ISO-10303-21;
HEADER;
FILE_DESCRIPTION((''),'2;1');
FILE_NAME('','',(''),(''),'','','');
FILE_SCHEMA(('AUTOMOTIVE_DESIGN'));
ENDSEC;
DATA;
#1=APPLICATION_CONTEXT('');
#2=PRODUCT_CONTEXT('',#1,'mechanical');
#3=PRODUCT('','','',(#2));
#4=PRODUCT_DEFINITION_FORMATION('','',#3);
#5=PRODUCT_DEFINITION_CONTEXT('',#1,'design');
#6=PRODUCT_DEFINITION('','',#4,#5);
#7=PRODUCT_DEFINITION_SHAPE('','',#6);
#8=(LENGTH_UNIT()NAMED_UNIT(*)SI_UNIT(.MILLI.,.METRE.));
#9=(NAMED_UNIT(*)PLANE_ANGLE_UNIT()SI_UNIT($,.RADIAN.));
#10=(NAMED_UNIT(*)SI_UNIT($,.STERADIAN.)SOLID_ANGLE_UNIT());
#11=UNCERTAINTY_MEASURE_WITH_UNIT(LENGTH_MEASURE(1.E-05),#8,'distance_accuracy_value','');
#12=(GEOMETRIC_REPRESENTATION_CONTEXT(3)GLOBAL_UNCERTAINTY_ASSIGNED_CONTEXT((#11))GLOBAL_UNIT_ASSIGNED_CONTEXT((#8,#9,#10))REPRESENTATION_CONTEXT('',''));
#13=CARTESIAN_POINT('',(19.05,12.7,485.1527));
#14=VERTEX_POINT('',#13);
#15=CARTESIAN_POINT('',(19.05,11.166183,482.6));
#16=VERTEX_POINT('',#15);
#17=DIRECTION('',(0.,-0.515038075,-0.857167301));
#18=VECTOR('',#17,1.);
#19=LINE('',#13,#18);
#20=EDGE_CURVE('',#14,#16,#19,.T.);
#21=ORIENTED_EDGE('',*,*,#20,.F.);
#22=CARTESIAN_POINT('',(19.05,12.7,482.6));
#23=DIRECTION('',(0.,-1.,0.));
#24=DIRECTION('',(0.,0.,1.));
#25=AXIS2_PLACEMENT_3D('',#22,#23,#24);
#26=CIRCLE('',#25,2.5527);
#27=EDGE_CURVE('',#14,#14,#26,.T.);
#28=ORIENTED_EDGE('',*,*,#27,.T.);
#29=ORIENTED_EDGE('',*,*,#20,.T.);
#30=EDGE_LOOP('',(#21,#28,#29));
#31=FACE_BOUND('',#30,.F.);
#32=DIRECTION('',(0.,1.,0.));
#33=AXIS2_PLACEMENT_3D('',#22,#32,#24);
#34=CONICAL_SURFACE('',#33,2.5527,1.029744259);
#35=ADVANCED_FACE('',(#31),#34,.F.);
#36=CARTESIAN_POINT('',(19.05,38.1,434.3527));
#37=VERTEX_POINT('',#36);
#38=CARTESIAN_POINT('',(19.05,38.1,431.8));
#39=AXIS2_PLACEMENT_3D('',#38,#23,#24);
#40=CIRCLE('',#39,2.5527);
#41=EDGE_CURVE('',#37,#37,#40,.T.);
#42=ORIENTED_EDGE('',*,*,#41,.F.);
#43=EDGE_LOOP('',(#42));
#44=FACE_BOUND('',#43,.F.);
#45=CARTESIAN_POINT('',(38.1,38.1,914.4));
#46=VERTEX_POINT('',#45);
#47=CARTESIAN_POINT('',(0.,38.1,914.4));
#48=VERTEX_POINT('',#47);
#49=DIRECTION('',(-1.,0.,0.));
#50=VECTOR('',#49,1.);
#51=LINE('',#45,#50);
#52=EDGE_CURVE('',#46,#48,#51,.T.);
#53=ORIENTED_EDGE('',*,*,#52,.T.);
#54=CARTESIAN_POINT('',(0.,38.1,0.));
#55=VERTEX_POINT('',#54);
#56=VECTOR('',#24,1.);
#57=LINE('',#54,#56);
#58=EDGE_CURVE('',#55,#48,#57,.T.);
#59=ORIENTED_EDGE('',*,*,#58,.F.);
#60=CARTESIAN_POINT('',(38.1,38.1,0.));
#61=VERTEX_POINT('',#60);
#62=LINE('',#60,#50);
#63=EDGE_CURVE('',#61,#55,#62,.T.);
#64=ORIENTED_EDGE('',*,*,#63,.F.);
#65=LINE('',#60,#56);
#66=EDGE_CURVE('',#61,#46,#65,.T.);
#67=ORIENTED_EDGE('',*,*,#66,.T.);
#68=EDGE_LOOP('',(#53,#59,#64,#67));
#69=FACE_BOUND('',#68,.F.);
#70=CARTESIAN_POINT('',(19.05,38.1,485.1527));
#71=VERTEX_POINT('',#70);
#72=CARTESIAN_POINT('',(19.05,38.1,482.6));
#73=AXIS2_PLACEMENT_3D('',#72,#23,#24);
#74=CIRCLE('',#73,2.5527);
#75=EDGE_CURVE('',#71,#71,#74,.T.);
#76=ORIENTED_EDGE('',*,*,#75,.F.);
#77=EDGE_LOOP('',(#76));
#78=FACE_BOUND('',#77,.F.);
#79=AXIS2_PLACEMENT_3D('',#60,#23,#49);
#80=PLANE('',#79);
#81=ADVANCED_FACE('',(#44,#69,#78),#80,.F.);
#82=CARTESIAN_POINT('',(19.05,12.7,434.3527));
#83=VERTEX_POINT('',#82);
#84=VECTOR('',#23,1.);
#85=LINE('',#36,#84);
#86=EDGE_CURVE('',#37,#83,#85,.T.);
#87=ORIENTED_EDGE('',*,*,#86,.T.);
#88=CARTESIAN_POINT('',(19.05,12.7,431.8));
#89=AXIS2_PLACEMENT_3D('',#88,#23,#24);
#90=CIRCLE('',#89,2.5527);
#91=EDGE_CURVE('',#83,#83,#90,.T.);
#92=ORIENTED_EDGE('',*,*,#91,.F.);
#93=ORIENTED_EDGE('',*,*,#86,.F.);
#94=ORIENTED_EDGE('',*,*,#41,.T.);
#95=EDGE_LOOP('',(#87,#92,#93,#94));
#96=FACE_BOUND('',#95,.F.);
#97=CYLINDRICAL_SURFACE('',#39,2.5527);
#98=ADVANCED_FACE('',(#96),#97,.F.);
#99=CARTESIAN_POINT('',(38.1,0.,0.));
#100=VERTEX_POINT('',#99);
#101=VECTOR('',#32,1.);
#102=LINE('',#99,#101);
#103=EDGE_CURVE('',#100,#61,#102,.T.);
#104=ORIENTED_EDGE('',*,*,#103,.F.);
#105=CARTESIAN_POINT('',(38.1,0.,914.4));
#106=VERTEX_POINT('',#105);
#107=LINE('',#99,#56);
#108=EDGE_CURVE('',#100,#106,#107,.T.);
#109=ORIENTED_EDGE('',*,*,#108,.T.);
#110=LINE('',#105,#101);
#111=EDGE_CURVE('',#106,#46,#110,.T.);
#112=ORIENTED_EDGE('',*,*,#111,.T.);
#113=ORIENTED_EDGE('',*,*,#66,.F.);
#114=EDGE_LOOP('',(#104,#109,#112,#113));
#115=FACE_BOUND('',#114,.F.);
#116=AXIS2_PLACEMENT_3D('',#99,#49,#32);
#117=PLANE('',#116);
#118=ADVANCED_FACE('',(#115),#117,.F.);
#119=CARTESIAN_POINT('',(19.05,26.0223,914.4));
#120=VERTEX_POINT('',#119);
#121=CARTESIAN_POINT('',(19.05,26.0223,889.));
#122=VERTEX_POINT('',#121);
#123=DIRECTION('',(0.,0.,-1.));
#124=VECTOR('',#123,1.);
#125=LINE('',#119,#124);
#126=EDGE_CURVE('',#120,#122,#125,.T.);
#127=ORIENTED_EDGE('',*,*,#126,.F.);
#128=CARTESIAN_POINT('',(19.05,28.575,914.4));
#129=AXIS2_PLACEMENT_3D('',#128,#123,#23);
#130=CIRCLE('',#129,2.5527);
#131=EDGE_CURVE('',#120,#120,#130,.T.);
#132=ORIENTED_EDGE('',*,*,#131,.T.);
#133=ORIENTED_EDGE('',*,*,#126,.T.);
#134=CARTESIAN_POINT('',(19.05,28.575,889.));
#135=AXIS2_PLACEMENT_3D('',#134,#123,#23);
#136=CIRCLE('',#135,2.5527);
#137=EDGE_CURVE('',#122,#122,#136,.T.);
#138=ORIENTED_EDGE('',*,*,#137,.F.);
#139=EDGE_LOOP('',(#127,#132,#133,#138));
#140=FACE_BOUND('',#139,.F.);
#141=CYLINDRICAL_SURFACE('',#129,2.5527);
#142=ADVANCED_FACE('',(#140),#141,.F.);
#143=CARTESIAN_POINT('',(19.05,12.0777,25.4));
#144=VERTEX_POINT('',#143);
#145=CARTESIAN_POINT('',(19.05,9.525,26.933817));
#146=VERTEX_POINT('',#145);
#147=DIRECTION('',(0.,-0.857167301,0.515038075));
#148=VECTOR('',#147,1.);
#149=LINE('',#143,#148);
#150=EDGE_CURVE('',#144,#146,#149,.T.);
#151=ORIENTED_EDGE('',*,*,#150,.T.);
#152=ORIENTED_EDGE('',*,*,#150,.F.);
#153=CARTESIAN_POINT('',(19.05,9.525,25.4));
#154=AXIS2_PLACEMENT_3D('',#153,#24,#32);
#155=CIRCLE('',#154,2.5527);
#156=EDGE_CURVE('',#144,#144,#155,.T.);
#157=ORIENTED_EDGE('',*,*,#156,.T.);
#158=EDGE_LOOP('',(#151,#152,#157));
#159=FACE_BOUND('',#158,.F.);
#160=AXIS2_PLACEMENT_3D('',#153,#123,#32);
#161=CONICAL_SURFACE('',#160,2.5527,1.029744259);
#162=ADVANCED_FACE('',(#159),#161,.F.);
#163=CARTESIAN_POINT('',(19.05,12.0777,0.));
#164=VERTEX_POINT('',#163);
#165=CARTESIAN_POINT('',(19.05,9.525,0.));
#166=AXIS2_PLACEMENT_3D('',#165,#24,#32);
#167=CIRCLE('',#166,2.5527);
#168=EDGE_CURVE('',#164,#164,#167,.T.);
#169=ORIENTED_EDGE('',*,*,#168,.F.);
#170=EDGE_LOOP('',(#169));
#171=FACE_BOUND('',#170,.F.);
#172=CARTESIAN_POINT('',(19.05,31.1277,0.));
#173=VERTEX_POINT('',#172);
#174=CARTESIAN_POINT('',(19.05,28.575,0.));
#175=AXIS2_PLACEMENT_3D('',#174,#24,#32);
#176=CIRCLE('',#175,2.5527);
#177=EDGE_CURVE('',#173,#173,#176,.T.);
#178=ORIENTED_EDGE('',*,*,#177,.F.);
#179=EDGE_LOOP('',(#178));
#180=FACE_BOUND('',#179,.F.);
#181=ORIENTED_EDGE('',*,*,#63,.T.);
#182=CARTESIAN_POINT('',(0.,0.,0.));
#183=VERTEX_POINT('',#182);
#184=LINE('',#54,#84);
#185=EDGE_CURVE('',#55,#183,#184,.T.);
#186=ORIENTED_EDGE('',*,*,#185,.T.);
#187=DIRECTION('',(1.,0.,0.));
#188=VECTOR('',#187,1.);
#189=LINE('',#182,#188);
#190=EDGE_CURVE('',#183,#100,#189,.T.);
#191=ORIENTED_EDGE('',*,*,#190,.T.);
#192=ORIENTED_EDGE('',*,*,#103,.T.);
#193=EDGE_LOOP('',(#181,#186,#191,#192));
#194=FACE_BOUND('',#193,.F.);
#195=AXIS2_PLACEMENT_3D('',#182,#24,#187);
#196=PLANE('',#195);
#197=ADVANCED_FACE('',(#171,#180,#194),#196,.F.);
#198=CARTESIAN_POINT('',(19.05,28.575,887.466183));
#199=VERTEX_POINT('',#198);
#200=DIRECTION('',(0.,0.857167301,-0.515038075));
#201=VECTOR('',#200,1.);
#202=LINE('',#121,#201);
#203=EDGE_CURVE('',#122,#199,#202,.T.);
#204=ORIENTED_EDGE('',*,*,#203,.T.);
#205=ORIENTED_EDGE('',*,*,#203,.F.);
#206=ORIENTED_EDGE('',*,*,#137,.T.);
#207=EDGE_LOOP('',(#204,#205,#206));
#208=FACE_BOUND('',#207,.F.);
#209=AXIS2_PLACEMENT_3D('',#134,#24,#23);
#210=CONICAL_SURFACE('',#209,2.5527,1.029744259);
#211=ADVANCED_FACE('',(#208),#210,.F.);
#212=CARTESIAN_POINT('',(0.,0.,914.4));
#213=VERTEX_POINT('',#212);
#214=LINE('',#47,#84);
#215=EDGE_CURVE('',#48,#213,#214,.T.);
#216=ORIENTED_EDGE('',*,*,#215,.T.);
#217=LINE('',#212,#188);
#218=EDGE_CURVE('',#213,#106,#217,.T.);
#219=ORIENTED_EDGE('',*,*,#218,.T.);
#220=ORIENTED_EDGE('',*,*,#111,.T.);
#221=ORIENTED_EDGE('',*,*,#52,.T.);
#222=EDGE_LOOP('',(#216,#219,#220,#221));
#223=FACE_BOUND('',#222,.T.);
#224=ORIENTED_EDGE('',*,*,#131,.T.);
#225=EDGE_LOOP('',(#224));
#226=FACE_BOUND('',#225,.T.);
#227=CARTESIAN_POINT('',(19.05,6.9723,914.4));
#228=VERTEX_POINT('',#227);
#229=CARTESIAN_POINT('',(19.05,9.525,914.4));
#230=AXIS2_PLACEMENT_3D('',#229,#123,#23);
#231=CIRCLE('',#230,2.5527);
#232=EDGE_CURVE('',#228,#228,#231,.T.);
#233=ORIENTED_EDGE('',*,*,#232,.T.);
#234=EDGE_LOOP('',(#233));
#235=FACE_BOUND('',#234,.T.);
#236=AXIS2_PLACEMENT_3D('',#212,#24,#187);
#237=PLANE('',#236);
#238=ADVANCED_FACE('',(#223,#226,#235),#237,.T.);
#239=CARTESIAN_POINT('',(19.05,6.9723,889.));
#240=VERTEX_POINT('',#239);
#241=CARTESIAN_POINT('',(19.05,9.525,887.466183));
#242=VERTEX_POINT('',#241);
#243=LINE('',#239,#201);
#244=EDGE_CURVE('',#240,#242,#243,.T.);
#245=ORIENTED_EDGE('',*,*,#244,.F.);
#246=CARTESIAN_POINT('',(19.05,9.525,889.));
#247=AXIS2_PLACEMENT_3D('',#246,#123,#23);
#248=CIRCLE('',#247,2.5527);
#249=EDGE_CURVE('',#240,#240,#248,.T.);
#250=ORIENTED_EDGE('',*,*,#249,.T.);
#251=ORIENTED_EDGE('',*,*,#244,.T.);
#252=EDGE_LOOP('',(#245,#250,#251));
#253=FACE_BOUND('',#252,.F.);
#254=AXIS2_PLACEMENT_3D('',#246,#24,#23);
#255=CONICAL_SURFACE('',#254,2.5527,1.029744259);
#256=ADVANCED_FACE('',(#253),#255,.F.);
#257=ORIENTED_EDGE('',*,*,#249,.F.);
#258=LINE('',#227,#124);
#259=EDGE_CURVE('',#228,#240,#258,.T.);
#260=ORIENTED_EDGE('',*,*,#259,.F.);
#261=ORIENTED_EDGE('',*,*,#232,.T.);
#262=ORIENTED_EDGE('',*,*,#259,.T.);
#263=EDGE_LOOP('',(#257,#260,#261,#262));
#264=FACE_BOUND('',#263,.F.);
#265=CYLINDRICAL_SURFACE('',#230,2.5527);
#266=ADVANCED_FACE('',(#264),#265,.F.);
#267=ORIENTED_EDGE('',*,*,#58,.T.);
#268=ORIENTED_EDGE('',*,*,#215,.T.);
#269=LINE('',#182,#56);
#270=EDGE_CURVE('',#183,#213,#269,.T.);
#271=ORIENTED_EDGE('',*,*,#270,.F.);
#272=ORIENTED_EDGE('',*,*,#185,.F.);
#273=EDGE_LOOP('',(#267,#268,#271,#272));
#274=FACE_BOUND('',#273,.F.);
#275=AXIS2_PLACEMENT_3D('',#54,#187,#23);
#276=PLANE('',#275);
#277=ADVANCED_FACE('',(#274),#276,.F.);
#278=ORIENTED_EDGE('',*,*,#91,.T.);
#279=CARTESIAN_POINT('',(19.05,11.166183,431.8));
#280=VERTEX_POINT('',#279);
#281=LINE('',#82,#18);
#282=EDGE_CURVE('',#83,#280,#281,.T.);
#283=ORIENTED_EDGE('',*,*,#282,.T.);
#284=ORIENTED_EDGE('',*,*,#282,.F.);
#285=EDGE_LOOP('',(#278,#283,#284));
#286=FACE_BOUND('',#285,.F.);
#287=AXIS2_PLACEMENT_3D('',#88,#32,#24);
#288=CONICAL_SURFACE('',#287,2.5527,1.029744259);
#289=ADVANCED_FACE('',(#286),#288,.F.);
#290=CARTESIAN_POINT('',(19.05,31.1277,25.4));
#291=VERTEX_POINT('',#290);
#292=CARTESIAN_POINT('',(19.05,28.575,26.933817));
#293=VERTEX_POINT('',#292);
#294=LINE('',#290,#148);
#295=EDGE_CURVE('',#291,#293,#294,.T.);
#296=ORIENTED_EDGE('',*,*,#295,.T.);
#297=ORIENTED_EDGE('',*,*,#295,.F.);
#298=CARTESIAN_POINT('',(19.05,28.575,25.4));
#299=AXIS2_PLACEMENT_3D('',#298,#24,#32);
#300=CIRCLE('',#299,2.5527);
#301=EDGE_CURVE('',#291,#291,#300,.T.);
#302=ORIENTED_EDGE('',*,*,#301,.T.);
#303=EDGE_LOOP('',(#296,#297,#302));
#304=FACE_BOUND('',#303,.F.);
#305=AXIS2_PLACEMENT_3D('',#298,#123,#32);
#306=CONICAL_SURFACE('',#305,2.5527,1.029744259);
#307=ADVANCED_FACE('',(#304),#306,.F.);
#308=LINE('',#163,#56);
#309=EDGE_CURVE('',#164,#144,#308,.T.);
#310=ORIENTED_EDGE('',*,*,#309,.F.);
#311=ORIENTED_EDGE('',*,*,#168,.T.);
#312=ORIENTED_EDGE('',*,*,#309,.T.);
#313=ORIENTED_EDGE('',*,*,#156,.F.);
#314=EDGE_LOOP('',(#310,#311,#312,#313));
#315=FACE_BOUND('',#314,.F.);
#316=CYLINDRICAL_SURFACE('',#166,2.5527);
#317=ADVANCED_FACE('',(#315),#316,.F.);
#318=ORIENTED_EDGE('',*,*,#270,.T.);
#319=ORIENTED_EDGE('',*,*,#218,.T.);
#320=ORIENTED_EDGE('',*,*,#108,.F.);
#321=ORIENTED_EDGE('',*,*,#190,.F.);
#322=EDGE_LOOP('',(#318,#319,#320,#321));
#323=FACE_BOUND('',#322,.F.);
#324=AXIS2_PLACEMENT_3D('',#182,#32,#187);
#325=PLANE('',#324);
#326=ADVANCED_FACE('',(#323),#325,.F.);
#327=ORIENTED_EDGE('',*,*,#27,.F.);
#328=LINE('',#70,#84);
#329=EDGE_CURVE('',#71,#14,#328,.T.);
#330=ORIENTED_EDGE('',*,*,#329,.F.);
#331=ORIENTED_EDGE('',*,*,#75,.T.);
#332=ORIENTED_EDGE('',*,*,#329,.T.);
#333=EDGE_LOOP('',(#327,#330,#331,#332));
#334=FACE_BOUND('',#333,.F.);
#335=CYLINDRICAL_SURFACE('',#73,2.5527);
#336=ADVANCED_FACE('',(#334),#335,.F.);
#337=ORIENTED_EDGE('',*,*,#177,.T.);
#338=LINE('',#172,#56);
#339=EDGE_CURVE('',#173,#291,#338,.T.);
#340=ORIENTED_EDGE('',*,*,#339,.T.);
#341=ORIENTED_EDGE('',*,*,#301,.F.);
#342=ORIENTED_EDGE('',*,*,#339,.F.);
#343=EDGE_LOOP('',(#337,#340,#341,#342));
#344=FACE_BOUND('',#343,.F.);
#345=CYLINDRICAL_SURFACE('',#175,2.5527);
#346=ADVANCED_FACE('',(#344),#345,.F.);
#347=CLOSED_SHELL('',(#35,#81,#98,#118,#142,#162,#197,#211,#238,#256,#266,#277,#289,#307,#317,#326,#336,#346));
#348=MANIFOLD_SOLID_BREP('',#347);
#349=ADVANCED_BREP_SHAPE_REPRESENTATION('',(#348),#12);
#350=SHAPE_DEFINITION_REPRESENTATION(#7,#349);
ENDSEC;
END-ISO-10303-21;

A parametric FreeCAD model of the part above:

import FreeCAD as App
import Part
import Sketcher
from FreeCAD import Vector
Q = App.Units.Quantity

doc = App.newDocument("Part")
body = doc.addObject("PartDesign::Body", "Body")

sketch1 = body.newObject("Sketcher::SketchObject", "Sketch")
sketch1.AttachmentSupport = (doc.getObject("XY_Plane"), [""])
sketch1.MapMode = "FlatFace"
sketch1.addGeometry([
    Part.LineSegment(Vector(0, 38, 0), Vector(0, 0, 0)),
    Part.LineSegment(Vector(0, 0, 0), Vector(38, 0, 0)),
    Part.LineSegment(Vector(38, 0, 0), Vector(38, 38, 0)),
    Part.LineSegment(Vector(38, 38, 0), Vector(0, 38, 0)),
], False)
sketch1.addConstraint([
    Sketcher.Constraint("Coincident", 0, 2, 1, 1),
    Sketcher.Constraint("Coincident", 1, 2, 2, 1),
    Sketcher.Constraint("Coincident", 2, 2, 3, 1),
    Sketcher.Constraint("Coincident", 3, 2, 0, 1),
    Sketcher.Constraint("Vertical", 0),
    Sketcher.Constraint("Horizontal", 1),
    Sketcher.Constraint("Vertical", 2),
    Sketcher.Constraint("Horizontal", 3),
    Sketcher.Constraint("Coincident", 0, 2, -1, 1),
    Sketcher.Constraint("Equal", 3, 0),
    Sketcher.Constraint("DistanceX", 1, 1, 1, 2, Q("1.5 in")),
])
pad1 = body.newObject("PartDesign::Pad", "Pad")
pad1.Profile = sketch1
pad1.Length = Q("36 in")

sketch2 = body.newObject("Sketcher::SketchObject", "Sketch001")
sketch2.AttachmentSupport = (doc.getObject("XZ_Plane"), [""])
sketch2.MapMode = "FlatFace"
sketch2.AttachmentOffset = App.Placement(Vector(0, 0, -1.5 * 25.4), App.Rotation())
sketch2.addGeometry([
    Part.Circle(Vector(19.1, 482.6, 0), Vector(0, 0, 1), 2.6),
    Part.Circle(Vector(19.1, 431.8, 0), Vector(0, 0, 1), 2.6),
], False)
sketch2.addConstraint([
    Sketcher.Constraint("Equal", 0, 1),
    Sketcher.Constraint("Vertical", 0, 3, 1, 3),
    Sketcher.Constraint("Diameter", 0, Q("0.201 in")),
    Sketcher.Constraint("DistanceY", -1, 1, 0, 3, Q("19 in")),
    Sketcher.Constraint("DistanceY", -1, 1, 1, 3, Q("17 in")),
    Sketcher.Constraint("DistanceX", -1, 1, 0, 3, Q("0.75 in")),
])
doc.recompute()
hole = body.newObject("PartDesign::Hole", "Hole")
hole.Profile = sketch2
hole.ThreadType = "None"
hole.Diameter = Q("0.201 in")
hole.DepthType = "Dimension"
hole.Depth = Q("1 in")
hole.DrillPoint = "Angled"
hole.DrillPointAngle = 118
hole.Reversed = True

sketch3 = body.newObject("Sketcher::SketchObject", "Sketch002")
sketch3.AttachmentSupport = (doc.getObject("XY_Plane"), [""])
sketch3.MapMode = "FlatFace"
sketch3.AttachmentOffset = App.Placement(Vector(0, 0, 36 * 25.4), App.Rotation())
sketch3.addGeometry([
    Part.Circle(Vector(19.1, 28.6, 0), Vector(0, 0, 1), 2.6),
    Part.Circle(Vector(19.1, 9.5, 0), Vector(0, 0, 1), 2.6),
], False)
sketch3.addConstraint([
    Sketcher.Constraint("Equal", 0, 1),
    Sketcher.Constraint("Vertical", 0, 3, 1, 3),
    Sketcher.Constraint("Diameter", 0, Q("0.201 in")),
    Sketcher.Constraint("DistanceX", -1, 1, 0, 3, Q("0.75 in")),
    Sketcher.Constraint("DistanceY", 1, 3, 0, 3, Q("0.75 in")),
    Sketcher.Constraint("DistanceY", -1, 1, 0, 3, Q("1.125 in")),
])
doc.recompute()
hole2 = body.newObject("PartDesign::Hole", "Hole001")
hole2.Profile = sketch3
hole2.ThreadType = "None"
hole2.Diameter = Q("0.201 in")
hole2.DepthType = "Dimension"
hole2.Depth = Q("1 in")
hole2.DrillPoint = "Angled"
hole2.DrillPointAngle = 118

sketch4 = body.newObject("Sketcher::SketchObject", "Sketch003")
sketch4.AttachmentSupport = (doc.getObject("XY_Plane"), [""])
sketch4.MapMode = "FlatFace"
sketch4.addGeometry([
    Part.Circle(Vector(19.1, 28.6, 0), Vector(0, 0, 1), 2.6),
    Part.Circle(Vector(19.1, 9.5, 0), Vector(0, 0, 1), 2.6),
], False)
sketch4.addConstraint([
    Sketcher.Constraint("Equal", 0, 1),
    Sketcher.Constraint("Vertical", 0, 3, 1, 3),
    Sketcher.Constraint("Diameter", 0, Q("0.201 in")),
    Sketcher.Constraint("DistanceX", -1, 1, 0, 3, Q("0.75 in")),
    Sketcher.Constraint("DistanceY", 1, 3, 0, 3, Q("0.75 in")),
    Sketcher.Constraint("DistanceY", -1, 1, 0, 3, Q("1.125 in")),
])
doc.recompute()
hole3 = body.newObject("PartDesign::Hole", "Hole002")
hole3.Profile = sketch4
hole3.ThreadType = "None"
hole3.Diameter = Q("0.201 in")
hole3.DepthType = "Dimension"
hole3.Depth = Q("1 in")
hole3.DrillPoint = "Angled"
hole3.DrillPointAngle = 118
hole3.Reversed = True

doc.recompute()
